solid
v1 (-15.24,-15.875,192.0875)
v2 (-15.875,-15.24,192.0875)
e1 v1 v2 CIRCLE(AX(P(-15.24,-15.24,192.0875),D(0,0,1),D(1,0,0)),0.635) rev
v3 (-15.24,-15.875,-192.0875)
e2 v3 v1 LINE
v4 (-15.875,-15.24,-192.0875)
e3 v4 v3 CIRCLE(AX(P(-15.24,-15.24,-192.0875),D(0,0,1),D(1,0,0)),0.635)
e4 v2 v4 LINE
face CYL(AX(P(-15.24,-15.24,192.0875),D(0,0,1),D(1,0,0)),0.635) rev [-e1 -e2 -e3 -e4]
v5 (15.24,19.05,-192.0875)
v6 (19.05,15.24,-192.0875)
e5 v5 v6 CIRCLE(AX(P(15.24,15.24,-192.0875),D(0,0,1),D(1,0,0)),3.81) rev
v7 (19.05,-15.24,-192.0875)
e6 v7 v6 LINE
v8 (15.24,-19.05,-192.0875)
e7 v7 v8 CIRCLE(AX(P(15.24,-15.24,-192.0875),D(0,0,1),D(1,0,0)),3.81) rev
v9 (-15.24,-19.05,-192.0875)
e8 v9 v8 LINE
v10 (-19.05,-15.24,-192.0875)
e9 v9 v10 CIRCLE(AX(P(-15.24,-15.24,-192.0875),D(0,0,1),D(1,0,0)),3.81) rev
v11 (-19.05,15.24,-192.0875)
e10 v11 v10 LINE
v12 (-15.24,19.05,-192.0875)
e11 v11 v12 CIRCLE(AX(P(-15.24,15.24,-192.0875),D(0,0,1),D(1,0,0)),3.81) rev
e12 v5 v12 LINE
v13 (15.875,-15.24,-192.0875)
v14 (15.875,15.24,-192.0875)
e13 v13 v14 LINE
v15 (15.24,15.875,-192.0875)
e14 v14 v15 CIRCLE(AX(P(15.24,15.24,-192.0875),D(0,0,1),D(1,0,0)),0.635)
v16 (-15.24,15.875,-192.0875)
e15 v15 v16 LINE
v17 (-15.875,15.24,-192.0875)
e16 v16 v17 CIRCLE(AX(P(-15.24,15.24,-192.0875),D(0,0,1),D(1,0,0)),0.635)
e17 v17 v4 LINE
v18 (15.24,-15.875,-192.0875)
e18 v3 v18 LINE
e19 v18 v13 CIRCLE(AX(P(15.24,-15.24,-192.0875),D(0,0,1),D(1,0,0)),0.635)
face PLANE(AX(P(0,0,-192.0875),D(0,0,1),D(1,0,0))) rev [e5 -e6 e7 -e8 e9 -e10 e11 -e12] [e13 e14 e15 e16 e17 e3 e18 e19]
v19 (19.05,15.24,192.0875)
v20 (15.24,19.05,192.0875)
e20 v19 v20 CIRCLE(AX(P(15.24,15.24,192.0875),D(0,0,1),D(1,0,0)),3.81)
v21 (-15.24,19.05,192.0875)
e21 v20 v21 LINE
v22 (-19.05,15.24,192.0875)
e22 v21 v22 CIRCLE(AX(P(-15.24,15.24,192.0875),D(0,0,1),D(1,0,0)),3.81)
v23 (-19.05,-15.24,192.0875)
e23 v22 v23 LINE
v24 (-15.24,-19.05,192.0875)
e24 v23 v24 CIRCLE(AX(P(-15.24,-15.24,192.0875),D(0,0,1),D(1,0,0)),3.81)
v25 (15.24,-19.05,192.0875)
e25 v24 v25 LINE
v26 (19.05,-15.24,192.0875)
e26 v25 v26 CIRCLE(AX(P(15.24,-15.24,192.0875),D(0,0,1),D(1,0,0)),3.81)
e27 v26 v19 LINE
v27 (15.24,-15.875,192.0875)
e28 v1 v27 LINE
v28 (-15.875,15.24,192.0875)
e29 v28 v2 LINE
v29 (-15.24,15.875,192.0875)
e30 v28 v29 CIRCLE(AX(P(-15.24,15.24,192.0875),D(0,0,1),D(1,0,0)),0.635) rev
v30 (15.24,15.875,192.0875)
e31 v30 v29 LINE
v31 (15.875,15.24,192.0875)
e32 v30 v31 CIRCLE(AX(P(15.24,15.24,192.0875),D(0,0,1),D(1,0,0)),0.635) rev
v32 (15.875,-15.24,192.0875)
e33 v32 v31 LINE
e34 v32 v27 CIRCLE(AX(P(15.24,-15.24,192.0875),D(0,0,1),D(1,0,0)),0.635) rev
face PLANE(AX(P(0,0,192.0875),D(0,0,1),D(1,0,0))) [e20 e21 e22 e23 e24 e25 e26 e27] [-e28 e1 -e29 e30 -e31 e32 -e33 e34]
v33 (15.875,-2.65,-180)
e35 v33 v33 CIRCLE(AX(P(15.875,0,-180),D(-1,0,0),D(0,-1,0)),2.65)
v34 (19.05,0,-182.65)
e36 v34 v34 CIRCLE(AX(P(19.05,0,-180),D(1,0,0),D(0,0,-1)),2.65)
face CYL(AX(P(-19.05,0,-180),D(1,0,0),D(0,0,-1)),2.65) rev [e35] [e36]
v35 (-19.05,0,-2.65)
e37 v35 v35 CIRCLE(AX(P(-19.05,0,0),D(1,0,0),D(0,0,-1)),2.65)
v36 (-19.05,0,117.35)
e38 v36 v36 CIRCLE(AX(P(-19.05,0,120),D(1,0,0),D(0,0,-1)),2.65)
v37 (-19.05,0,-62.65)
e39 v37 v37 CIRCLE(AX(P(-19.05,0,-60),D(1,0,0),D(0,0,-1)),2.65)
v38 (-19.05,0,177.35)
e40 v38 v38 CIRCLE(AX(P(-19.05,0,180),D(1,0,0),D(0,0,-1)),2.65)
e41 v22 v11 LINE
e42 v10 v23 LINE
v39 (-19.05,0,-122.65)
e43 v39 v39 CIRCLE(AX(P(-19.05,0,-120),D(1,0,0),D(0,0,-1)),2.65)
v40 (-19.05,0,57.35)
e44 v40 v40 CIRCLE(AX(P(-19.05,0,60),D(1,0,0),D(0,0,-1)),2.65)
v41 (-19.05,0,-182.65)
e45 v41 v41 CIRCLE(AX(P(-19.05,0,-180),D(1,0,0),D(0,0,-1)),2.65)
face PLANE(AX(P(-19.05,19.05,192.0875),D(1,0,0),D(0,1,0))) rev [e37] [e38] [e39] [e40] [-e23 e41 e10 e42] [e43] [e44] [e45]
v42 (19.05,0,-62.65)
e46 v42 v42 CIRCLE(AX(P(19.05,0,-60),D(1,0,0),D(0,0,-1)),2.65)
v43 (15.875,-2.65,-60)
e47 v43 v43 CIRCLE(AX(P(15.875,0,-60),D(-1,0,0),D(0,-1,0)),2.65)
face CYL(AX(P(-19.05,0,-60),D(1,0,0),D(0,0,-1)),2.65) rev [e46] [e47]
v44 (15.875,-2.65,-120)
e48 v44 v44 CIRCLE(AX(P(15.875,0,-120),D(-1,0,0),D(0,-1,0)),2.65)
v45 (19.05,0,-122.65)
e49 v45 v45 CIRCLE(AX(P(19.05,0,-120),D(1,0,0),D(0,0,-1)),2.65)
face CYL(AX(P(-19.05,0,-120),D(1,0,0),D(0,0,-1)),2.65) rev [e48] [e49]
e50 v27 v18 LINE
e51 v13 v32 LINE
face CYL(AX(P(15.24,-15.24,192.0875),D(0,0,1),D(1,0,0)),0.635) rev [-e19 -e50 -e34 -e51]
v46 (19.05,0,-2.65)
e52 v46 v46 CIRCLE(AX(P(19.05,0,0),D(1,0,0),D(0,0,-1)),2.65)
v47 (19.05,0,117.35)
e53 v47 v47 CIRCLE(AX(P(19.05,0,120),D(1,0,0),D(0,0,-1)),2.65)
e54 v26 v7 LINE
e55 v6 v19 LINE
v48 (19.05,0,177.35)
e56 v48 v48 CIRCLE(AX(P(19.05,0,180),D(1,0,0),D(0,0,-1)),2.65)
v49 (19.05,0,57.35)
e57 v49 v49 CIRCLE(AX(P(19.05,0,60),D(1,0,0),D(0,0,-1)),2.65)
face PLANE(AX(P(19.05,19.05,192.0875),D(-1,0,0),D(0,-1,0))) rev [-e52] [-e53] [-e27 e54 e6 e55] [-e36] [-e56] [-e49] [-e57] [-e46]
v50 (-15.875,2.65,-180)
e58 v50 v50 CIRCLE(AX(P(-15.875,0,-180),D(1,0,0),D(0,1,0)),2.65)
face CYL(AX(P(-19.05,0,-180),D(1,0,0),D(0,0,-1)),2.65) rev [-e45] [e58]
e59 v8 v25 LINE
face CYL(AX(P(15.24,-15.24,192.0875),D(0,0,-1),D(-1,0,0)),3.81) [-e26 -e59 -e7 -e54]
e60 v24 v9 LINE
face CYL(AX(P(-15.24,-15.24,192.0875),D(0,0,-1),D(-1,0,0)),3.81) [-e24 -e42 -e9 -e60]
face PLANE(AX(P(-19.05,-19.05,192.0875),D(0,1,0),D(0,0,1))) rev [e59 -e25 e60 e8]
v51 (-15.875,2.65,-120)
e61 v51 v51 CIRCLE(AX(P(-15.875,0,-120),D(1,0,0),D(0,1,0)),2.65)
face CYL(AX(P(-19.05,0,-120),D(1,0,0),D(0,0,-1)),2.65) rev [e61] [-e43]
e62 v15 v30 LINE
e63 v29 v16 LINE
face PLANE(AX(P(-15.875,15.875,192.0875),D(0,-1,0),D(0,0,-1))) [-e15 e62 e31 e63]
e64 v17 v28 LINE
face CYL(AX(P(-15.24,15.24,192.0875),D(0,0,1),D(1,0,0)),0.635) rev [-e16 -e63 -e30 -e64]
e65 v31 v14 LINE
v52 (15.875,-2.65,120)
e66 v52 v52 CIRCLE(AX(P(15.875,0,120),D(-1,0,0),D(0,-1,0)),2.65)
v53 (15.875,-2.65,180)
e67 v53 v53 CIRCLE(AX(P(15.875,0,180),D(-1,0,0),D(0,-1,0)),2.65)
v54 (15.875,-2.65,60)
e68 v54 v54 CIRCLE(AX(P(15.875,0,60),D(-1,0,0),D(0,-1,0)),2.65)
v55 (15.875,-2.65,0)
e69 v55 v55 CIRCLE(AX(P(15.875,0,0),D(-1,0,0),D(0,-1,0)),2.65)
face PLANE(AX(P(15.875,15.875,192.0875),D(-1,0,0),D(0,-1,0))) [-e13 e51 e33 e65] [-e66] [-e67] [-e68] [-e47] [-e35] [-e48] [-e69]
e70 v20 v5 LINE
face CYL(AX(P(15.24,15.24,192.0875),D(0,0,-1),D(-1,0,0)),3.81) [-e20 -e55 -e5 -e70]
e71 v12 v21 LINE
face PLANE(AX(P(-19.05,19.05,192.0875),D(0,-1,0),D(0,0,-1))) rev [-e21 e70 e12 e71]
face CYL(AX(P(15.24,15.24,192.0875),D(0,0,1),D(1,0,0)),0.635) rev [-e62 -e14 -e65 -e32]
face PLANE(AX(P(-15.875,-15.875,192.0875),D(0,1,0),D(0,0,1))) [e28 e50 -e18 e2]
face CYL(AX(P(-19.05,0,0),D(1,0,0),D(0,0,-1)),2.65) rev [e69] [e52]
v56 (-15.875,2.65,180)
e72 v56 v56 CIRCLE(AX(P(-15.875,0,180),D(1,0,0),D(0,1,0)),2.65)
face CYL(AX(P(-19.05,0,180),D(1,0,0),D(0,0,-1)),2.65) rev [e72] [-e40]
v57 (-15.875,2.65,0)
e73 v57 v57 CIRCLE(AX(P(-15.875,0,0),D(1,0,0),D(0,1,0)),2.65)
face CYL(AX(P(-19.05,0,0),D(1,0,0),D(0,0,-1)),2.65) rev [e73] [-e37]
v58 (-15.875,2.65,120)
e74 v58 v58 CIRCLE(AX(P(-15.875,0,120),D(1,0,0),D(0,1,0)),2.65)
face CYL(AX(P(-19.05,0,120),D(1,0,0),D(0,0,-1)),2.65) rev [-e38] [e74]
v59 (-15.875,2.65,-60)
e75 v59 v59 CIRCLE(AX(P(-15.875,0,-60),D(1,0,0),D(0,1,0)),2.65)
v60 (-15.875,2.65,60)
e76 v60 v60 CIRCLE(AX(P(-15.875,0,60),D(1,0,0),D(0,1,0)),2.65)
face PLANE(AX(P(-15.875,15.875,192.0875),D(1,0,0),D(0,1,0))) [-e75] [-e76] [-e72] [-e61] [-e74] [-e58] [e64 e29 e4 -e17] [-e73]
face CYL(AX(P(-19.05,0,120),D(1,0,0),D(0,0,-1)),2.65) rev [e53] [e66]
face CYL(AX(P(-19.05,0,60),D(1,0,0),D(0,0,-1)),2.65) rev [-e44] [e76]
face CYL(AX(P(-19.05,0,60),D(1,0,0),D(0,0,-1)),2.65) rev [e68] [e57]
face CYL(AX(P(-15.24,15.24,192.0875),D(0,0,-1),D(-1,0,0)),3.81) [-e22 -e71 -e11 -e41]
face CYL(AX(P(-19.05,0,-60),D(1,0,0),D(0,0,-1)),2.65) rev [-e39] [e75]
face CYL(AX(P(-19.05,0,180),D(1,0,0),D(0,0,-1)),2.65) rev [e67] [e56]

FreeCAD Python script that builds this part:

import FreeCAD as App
import Part
import Sketcher
from FreeCAD import Vector
Q = App.Units.Quantity


def edges_at(feature, points):
    """Names of the edges that pass closest to the given points."""
    edges = feature.Shape.Edges
    near = lambda p: min(range(len(edges)), key=lambda i: edges[i].distToShape(Part.Vertex(*p))[0])
    return sorted({f"Edge{near(p) + 1}" for p in points})

doc = App.newDocument("Part")
body = doc.addObject("PartDesign::Body", "Body")

sketch1 = body.newObject("Sketcher::SketchObject", "Sketch")
sketch1.AttachmentSupport = (doc.getObject("XY_Plane"), [""])
sketch1.MapMode = "FlatFace"
sketch1.addGeometry([
    Part.LineSegment(Vector(-19, 19, 0), Vector(-19, -19, 0)),
    Part.LineSegment(Vector(-19, -19, 0), Vector(19, -19, 0)),
    Part.LineSegment(Vector(19, -19, 0), Vector(19, 19, 0)),
    Part.LineSegment(Vector(19, 19, 0), Vector(-19, 19, 0)),
    Part.LineSegment(Vector(16, -16, 0), Vector(-16, -16, 0)),
    Part.LineSegment(Vector(-16, -16, 0), Vector(-16, 16, 0)),
    Part.LineSegment(Vector(-16, 16, 0), Vector(16, 16, 0)),
    Part.LineSegment(Vector(16, 16, 0), Vector(16, -16, 0)),
], False)
sketch1.addConstraint([
    Sketcher.Constraint("Coincident", 0, 2, 1, 1),
    Sketcher.Constraint("Coincident", 1, 2, 2, 1),
    Sketcher.Constraint("Coincident", 2, 2, 3, 1),
    Sketcher.Constraint("Coincident", 3, 2, 0, 1),
    Sketcher.Constraint("Coincident", 4, 2, 5, 1),
    Sketcher.Constraint("Coincident", 5, 2, 6, 1),
    Sketcher.Constraint("Coincident", 6, 2, 7, 1),
    Sketcher.Constraint("Coincident", 7, 2, 4, 1),
    Sketcher.Constraint("Vertical", 0),
    Sketcher.Constraint("Horizontal", 1),
    Sketcher.Constraint("Vertical", 2),
    Sketcher.Constraint("Horizontal", 3),
    Sketcher.Constraint("Horizontal", 4),
    Sketcher.Constraint("Vertical", 5),
    Sketcher.Constraint("Horizontal", 6),
    Sketcher.Constraint("Vertical", 7),
    Sketcher.Constraint("Symmetric", 0, 2, 2, 2, -1, 1),
    Sketcher.Constraint("Symmetric", 4, 2, 6, 2, -1, 1),
    Sketcher.Constraint("Equal", 3, 0),
    Sketcher.Constraint("Equal", 6, 5),
    Sketcher.Constraint("DistanceX", 1, 1, 1, 2, Q("1.5 in")),
    Sketcher.Constraint("DistanceX", 4, 2, 4, 1, Q("1.25 in")),
])
pad1 = body.newObject("PartDesign::Pad", "Pad")
pad1.Profile = sketch1
pad1.Length = Q("15.125 in")
pad1.Midplane = True
doc.recompute()

fillet = body.newObject("PartDesign::Fillet", "Fillet")
fillet.Base = (pad1, edges_at(pad1, [
    (19.05, -19.05, 0),
    (-19.05, -19.05, 0),
    (-19.05, 19.05, 0),
    (19.05, 19.05, 0),
]))
fillet.Radius = Q("0.15 in")
doc.recompute()

fillet2 = body.newObject("PartDesign::Fillet", "Fillet001")
fillet2.Base = (fillet, edges_at(fillet, [
    (15.875, -15.875, 0),
    (15.875, 15.875, 0),
    (-15.875, 15.875, 0),
    (-15.875, -15.875, 0),
]))
fillet2.Radius = Q("0.025 in")

sketch2 = body.newObject("Sketcher::SketchObject", "Sketch001")
sketch2.AttachmentSupport = (doc.getObject("YZ_Plane"), [""])
sketch2.MapMode = "FlatFace"
sketch2.addGeometry([
    Part.Circle(Vector(0, 180, 0), Vector(0, 0, 1), 2.6),
    Part.Circle(Vector(0, 120, 0), Vector(0, 0, 1), 2.6),
    Part.Circle(Vector(0, 60, 0), Vector(0, 0, 1), 2.6),
    Part.Circle(Vector(0, 0, 0), Vector(0, 0, 1), 2.6),
    Part.Circle(Vector(0, -60, 0), Vector(0, 0, 1), 2.6),
    Part.Circle(Vector(0, -120, 0), Vector(0, 0, 1), 2.6),
    Part.Circle(Vector(0, -180, 0), Vector(0, 0, 1), 2.6),
], False)
sketch2.addConstraint([
    Sketcher.Constraint("Coincident", 3, 3, -1, 1),
    Sketcher.Constraint("Equal", 0, 1),
    Sketcher.Constraint("Equal", 1, 2),
    Sketcher.Constraint("Equal", 2, 3),
    Sketcher.Constraint("Equal", 3, 4),
    Sketcher.Constraint("Equal", 4, 5),
    Sketcher.Constraint("Equal", 5, 6),
    Sketcher.Constraint("Symmetric", 2, 3, 4, 3, -1, 1),
    Sketcher.Constraint("Symmetric", 1, 3, 5, 3, -1, 1),
    Sketcher.Constraint("Symmetric", 0, 3, 6, 3, -1, 1),
    Sketcher.Constraint("PointOnObject", 0, 3, -2),
    Sketcher.Constraint("PointOnObject", 1, 3, -2),
    Sketcher.Constraint("PointOnObject", 2, 3, -2),
    Sketcher.Constraint("Diameter", 0, 5.3),
    Sketcher.Constraint("DistanceY", -1, 1, 0, 3, 180.0),
    Sketcher.Constraint("DistanceY", -1, 1, 1, 3, 120.0),
    Sketcher.Constraint("DistanceY", -1, 1, 2, 3, 60.0),
])
pocket1 = body.newObject("PartDesign::Pocket", "Pocket")
pocket1.Profile = sketch2
pocket1.Type = "ThroughAll"
pocket1.Midplane = True

doc.recompute()
